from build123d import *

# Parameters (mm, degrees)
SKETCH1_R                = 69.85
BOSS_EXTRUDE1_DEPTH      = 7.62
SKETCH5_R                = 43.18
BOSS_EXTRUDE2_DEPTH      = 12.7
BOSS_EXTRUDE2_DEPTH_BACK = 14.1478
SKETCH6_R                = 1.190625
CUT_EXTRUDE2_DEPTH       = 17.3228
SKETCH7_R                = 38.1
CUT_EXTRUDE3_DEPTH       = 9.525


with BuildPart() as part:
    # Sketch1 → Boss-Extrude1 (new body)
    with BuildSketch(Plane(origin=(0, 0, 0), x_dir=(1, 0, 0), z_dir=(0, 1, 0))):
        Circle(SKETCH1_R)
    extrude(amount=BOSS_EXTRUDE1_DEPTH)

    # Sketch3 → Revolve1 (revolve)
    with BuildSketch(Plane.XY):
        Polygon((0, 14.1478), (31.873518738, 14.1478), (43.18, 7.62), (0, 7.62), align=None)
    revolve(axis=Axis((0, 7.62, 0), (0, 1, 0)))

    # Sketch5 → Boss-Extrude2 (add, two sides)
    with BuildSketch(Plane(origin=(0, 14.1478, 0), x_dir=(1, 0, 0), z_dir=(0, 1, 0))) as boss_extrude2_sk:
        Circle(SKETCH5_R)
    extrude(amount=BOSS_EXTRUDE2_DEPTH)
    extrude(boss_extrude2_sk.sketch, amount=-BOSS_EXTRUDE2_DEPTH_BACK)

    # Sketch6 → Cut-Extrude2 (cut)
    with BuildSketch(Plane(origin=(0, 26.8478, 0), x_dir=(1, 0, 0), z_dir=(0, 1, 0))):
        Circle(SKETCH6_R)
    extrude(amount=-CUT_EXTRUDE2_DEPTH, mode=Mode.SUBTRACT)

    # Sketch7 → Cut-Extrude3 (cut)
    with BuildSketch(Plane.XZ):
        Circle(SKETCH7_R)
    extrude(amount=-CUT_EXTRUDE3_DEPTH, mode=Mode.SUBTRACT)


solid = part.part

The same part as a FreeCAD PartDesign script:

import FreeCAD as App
import Part
import Sketcher
Q = App.Units.Quantity


def add_polygon(sketch, points):
    """Adds a closed chain of lines whose ends are joined by coincident constraints."""
    first, n = sketch.GeometryCount, len(points)
    for a, b in zip(points, points[1:] + points[:1]):
        sketch.addGeometry(Part.LineSegment(App.Vector(*a, 0), App.Vector(*b, 0)), False)
    for i in range(n):
        sketch.addConstraint(Sketcher.Constraint("Coincident", first + i, 2, first + (i + 1) % n, 1))

doc = App.newDocument("Part")
body = doc.addObject("PartDesign::Body", "Body")

# Sketch on XZ plane
sketch1 = body.newObject("Sketcher::SketchObject", "Sketch")
sketch1.AttachmentSupport = (doc.getObject("XZ_Plane"), [""])
sketch1.MapMode = "FlatFace"
sketch1.addGeometry(Part.Circle(App.Vector(0, 0, 0), App.Vector(0, 0, 1), 70), False)
sketch1.addConstraint(Sketcher.Constraint("Coincident", 0, 3, -1, 1))
sketch1.addConstraint(Sketcher.Constraint("Diameter", 0, Q("5.5 in")))
pad1 = body.newObject("PartDesign::Pad", "Pad")
pad1.Profile = sketch1
pad1.Length = Q("0.3 in")
pad1.Reversed = True

# Sketch on XY plane
sketch2 = body.newObject("Sketcher::SketchObject", "Sketch001")
sketch2.AttachmentSupport = (doc.getObject("XY_Plane"), [""])
sketch2.MapMode = "FlatFace"
add_polygon(sketch2, [(32, 14), (0, 14), (0, 8), (43, 8)])  # lines 0-3
sketch2.addConstraint(Sketcher.Constraint("Horizontal", 0))
sketch2.addConstraint(Sketcher.Constraint("Vertical", 1))
sketch2.addConstraint(Sketcher.Constraint("Horizontal", 2))
sketch2.addConstraint(Sketcher.Constraint("PointOnObject", 0, 2, -2))
sketch2.addConstraint(Sketcher.Constraint("DistanceX", 2, 1, 2, 2, Q("1.7 in")))
sketch2.addConstraint(Sketcher.Constraint("Angle", 3, Q("150 deg")))
sketch2.addConstraint(Sketcher.Constraint("DistanceY", -1, 1, 1, 2, Q("0.3 in")))
sketch2.addConstraint(Sketcher.Constraint("DistanceY", 1, 2, 1, 1, Q("0.257 in")))
revolution = body.newObject("PartDesign::Revolution", "Revolution")
revolution.Profile = sketch2
revolution.ReferenceAxis = (sketch2, ["V_Axis"])
revolution.Angle = 360

# Sketch on XZ plane
sketch3 = body.newObject("Sketcher::SketchObject", "Sketch002")
sketch3.AttachmentSupport = (doc.getObject("XZ_Plane"), [""])
sketch3.MapMode = "FlatFace"
sketch3.AttachmentOffset = App.Placement(App.Vector(0, 0, -0.557 * 25.4), App.Rotation())
sketch3.addGeometry(Part.Circle(App.Vector(0, 0, 0), App.Vector(0, 0, 1), 43), False)
sketch3.addConstraint(Sketcher.Constraint("Coincident", 0, 3, -1, 1))
sketch3.addConstraint(Sketcher.Constraint("Diameter", 0, Q("3.4 in")))
pad2 = body.newObject("PartDesign::Pad", "Pad001")
pad2.Profile = sketch3
pad2.Type = "TwoLengths"
pad2.Length = Q("0.5 in")
pad2.Length2 = Q("0.557 in")
pad2.Reversed = True

# Sketch on XZ plane
sketch4 = body.newObject("Sketcher::SketchObject", "Sketch003")
sketch4.AttachmentSupport = (doc.getObject("XZ_Plane"), [""])
sketch4.MapMode = "FlatFace"
sketch4.AttachmentOffset = App.Placement(App.Vector(0, 0, -1.057 * 25.4), App.Rotation())
sketch4.addGeometry(Part.Circle(App.Vector(0, 0, 0), App.Vector(0, 0, 1), 1.2), False)
sketch4.addConstraint(Sketcher.Constraint("Coincident", 0, 3, -1, 1))
sketch4.addConstraint(Sketcher.Constraint("Diameter", 0, Q("0.09375 in")))
pocket1 = body.newObject("PartDesign::Pocket", "Pocket")
pocket1.Profile = sketch4
pocket1.Length = Q("0.682 in")
pocket1.Reversed = True

# Sketch on XZ plane
sketch5 = body.newObject("Sketcher::SketchObject", "Sketch004")
sketch5.AttachmentSupport = (doc.getObject("XZ_Plane"), [""])
sketch5.MapMode = "FlatFace"
sketch5.addGeometry(Part.Circle(App.Vector(0, 0, 0), App.Vector(0, 0, 1), 38), False)
sketch5.addConstraint(Sketcher.Constraint("Coincident", 0, 3, -1, 1))
sketch5.addConstraint(Sketcher.Constraint("Diameter", 0, Q("3 in")))
pocket2 = body.newObject("PartDesign::Pocket", "Pocket001")
pocket2.Profile = sketch5
pocket2.Length = Q("0.375 in")

doc.recompute()
